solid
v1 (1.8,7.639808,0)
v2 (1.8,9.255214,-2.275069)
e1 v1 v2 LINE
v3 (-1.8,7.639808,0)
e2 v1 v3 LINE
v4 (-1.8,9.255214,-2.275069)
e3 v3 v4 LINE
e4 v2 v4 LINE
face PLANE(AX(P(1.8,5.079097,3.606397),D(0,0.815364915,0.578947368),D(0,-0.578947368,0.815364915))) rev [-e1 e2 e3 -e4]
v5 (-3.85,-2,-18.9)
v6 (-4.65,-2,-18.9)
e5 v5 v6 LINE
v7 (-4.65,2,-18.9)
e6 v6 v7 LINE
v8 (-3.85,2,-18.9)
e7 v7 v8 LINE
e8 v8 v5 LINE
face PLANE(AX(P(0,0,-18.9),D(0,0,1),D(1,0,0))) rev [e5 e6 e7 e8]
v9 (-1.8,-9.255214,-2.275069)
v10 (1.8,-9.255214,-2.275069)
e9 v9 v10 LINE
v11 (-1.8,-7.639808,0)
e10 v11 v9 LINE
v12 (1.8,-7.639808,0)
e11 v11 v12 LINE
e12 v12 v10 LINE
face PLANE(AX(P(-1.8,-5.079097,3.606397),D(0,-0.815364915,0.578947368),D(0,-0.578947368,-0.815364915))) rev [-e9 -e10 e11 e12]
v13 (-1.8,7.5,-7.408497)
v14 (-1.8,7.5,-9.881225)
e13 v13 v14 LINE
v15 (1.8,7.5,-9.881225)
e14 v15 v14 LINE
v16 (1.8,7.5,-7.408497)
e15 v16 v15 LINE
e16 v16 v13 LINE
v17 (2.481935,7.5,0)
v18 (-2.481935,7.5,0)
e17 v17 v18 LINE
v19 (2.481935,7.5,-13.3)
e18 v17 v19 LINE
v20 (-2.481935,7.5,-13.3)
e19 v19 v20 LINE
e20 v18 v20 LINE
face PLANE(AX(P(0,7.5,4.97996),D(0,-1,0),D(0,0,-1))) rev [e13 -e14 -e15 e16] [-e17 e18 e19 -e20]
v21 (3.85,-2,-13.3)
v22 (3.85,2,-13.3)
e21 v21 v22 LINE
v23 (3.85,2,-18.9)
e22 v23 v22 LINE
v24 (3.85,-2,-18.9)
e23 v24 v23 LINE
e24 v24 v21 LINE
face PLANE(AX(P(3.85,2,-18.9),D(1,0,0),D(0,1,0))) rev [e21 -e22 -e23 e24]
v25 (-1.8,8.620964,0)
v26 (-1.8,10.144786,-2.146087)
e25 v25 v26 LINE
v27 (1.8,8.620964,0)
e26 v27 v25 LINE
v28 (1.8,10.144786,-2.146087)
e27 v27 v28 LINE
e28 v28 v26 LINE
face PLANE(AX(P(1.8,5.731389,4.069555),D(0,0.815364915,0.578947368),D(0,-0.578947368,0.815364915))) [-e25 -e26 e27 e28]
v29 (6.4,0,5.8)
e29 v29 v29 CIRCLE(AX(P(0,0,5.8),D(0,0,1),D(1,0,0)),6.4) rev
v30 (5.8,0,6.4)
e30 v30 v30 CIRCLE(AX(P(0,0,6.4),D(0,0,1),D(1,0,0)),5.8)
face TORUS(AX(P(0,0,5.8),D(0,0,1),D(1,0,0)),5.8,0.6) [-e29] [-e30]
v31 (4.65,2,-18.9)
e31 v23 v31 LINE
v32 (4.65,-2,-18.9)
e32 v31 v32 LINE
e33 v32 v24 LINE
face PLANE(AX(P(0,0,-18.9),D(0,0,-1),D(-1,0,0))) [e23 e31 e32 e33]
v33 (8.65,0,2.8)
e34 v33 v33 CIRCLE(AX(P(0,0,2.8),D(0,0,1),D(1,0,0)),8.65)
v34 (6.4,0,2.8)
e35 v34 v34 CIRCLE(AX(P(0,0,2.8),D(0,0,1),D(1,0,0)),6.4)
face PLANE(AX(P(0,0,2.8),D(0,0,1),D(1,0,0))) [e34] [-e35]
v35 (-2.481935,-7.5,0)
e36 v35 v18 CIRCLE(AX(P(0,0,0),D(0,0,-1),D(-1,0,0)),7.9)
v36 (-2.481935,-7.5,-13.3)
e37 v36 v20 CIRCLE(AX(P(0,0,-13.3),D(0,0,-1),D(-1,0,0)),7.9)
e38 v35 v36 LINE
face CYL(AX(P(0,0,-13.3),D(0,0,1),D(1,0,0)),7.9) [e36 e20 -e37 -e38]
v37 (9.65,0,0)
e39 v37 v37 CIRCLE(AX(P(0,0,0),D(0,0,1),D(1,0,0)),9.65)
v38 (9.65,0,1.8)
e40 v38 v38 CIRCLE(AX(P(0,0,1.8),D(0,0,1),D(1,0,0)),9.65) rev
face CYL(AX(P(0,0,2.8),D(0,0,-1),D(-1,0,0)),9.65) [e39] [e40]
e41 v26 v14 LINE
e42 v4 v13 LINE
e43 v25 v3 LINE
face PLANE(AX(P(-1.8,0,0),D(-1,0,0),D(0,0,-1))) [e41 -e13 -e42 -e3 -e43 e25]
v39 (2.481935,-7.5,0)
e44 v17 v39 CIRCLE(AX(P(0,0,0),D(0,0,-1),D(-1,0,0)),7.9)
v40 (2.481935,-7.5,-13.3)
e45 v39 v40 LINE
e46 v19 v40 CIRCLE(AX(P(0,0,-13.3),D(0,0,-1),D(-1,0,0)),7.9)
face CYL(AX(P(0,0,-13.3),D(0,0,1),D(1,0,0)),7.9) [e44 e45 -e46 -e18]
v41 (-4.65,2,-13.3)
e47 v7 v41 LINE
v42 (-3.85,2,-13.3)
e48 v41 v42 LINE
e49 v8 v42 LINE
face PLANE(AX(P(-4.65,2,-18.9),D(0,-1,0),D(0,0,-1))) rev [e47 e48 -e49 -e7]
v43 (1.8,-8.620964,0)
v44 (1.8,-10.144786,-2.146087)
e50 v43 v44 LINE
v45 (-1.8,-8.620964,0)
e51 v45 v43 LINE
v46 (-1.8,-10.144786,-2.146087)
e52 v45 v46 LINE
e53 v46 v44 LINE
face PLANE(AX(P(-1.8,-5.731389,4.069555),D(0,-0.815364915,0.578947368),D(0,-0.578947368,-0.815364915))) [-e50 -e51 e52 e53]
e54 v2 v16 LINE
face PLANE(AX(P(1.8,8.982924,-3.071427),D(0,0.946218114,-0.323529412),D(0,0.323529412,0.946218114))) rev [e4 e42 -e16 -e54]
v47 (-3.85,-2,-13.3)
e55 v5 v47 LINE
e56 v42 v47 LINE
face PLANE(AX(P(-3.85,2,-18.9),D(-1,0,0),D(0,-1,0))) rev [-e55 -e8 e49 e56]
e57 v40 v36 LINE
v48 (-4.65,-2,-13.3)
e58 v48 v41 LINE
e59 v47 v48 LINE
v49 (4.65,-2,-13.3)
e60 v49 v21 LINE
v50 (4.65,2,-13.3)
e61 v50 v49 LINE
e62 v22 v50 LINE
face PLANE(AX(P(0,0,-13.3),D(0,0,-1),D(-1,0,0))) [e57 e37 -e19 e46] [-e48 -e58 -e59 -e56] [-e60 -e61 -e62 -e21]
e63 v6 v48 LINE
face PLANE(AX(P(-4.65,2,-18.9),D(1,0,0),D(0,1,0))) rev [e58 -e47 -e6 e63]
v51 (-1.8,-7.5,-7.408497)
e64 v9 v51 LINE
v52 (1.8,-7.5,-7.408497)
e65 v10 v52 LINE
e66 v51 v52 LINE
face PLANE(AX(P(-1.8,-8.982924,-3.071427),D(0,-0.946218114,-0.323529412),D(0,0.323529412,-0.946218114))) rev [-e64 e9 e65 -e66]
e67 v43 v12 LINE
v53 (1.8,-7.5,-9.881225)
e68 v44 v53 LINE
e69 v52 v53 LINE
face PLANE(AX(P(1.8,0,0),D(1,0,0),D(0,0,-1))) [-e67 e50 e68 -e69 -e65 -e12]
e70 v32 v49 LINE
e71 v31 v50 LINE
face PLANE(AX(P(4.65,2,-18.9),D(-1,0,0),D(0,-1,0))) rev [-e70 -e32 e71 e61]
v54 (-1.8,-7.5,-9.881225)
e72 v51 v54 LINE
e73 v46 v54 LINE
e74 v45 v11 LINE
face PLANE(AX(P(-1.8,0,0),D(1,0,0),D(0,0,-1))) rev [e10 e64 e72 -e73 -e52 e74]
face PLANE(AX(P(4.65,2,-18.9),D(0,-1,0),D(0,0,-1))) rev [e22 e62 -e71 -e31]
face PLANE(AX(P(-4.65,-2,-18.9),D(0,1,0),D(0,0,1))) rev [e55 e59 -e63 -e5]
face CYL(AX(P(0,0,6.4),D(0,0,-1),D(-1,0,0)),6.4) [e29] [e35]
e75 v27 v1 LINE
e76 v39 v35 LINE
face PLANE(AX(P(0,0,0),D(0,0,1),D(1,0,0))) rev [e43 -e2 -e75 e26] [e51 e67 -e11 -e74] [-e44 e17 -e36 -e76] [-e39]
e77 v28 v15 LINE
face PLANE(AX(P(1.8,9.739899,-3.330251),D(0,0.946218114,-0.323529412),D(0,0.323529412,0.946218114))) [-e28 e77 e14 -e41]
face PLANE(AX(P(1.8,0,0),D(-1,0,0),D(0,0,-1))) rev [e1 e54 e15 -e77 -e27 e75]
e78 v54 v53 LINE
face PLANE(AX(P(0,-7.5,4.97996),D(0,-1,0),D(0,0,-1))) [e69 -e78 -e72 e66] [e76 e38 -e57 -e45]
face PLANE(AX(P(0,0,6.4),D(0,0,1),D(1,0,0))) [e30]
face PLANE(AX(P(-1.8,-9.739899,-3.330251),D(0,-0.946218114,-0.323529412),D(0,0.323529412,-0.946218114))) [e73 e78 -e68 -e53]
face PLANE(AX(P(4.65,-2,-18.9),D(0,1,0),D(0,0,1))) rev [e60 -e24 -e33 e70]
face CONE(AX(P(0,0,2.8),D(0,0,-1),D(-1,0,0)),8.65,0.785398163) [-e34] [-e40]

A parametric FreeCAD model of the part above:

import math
import FreeCAD as App
import Part
import Sketcher


def edges_at(feature, points):
    """Names of the edges that pass closest to the given points."""
    edges = feature.Shape.Edges
    near = lambda p: min(range(len(edges)), key=lambda i: edges[i].distToShape(Part.Vertex(*p))[0])
    return sorted({f"Edge{near(p) + 1}" for p in points})

doc = App.newDocument("Part")
body = doc.addObject("PartDesign::Body", "Body")

# Sketch on XY plane
sketch1 = body.newObject("Sketcher::SketchObject", "Sketch")
sketch1.AttachmentSupport = (doc.getObject("XY_Plane"), [""])
sketch1.MapMode = "FlatFace"
sketch1.addGeometry(Part.Circle(App.Vector(0, 0, 0), App.Vector(0, 0, 1), 10), False)
sketch1.addConstraint(Sketcher.Constraint("Coincident", 0, 3, -1, 1))
sketch1.addConstraint(Sketcher.Constraint("Diameter", 0, 19.3))
pad1 = body.newObject("PartDesign::Pad", "Pad")
pad1.Profile = sketch1
pad1.Length = 2.8
doc.recompute()

chamfer = body.newObject("PartDesign::Chamfer", "Chamfer")
chamfer.Base = (pad1, edges_at(pad1, [(-9.65, 0, 2.8)]))
chamfer.Size = 1

# Sketch on XY plane
sketch2 = body.newObject("Sketcher::SketchObject", "Sketch001")
sketch2.AttachmentSupport = (doc.getObject("XY_Plane"), [""])
sketch2.MapMode = "FlatFace"
sketch2.AttachmentOffset = App.Placement(App.Vector(0, 0, 2.8), App.Rotation())
sketch2.addGeometry(Part.Circle(App.Vector(0, 0, 0), App.Vector(0, 0, 1), 6), False)
sketch2.addConstraint(Sketcher.Constraint("Coincident", 0, 3, -1, 1))
sketch2.addConstraint(Sketcher.Constraint("Diameter", 0, 12.8))
pad2 = body.newObject("PartDesign::Pad", "Pad001")
pad2.Profile = sketch2
pad2.Length = 3.6
doc.recompute()

fillet = body.newObject("PartDesign::Fillet", "Fillet")
fillet.Base = (pad2, edges_at(pad2, [(-6.4, 0, 6.4)]))
fillet.Radius = 0.6

# Sketch on XY plane
sketch3 = body.newObject("Sketcher::SketchObject", "Sketch002")
sketch3.AttachmentSupport = (doc.getObject("XY_Plane"), [""])
sketch3.MapMode = "FlatFace"
sketch3.addGeometry(Part.Circle(App.Vector(0, 0, 0), App.Vector(0, 0, 1), 8), False)
sketch3.addConstraint(Sketcher.Constraint("Coincident", 0, 3, -1, 1))
sketch3.addConstraint(Sketcher.Constraint("Diameter", 0, 15.8))
pad3 = body.newObject("PartDesign::Pad", "Pad002")
pad3.Profile = sketch3
pad3.Length = 13.3
pad3.Reversed = True

# Sketch on XY plane
sketch4 = body.newObject("Sketcher::SketchObject", "Sketch003")
sketch4.AttachmentSupport = (doc.getObject("XY_Plane"), [""])
sketch4.MapMode = "FlatFace"
sketch4.addGeometry(Part.ArcOfCircle(Part.Circle(App.Vector(0, 0, 0), App.Vector(0, 0, 1), 7.9), math.radians(72), math.radians(108)), False)
sketch4.addGeometry(Part.LineSegment(App.Vector(2.5, 7.5, 0), App.Vector(-2.5, 7.5, 0)), False)
sketch4.addGeometry(Part.LineSegment(App.Vector(-2.5, -7.5, 0), App.Vector(2.5, -7.5, 0)), False)
sketch4.addGeometry(Part.ArcOfCircle(Part.Circle(App.Vector(0, 0, 0), App.Vector(0, 0, 1), 7.9), math.radians(-108), math.radians(-72)), False)
sketch4.addConstraint(Sketcher.Constraint("Coincident", 0, 1, 1, 1))
sketch4.addConstraint(Sketcher.Constraint("Coincident", 1, 2, 0, 2))
sketch4.addConstraint(Sketcher.Constraint("Coincident", 2, 1, 3, 1))
sketch4.addConstraint(Sketcher.Constraint("Coincident", 3, 2, 2, 2))
sketch4.addConstraint(Sketcher.Constraint("Horizontal", 1))
sketch4.addConstraint(Sketcher.Constraint("Horizontal", 2))
sketch4.addConstraint(Sketcher.Constraint("Coincident", 0, 3, -1, 1))
sketch4.addConstraint(Sketcher.Constraint("Coincident", 3, 3, -1, 1))
sketch4.addConstraint(Sketcher.Constraint("Equal", 0, 3))
sketch4.addConstraint(Sketcher.Constraint("Vertical", 1, 2, 2, 1))
sketch4.addConstraint(Sketcher.Constraint("Radius", 0, 7.9))
sketch4.addConstraint(Sketcher.Constraint("DistanceY", 2, 1, 1, 2, 15.0))
pocket1 = body.newObject("PartDesign::Pocket", "Pocket")
pocket1.Profile = sketch4
pocket1.Length = 13.3

# Sketch on XY plane
sketch5 = body.newObject("Sketcher::SketchObject", "Sketch004")
sketch5.AttachmentSupport = (doc.getObject("XY_Plane"), [""])
sketch5.MapMode = "FlatFace"
sketch5.AttachmentOffset = App.Placement(App.Vector(0, 0, -13.3), App.Rotation())
sketch5.addGeometry(Part.LineSegment(App.Vector(-3.9, 2, 0), App.Vector(-3.9, -2, 0)), False)
sketch5.addGeometry(Part.LineSegment(App.Vector(-3.9, -2, 0), App.Vector(-4.7, -2, 0)), False)
sketch5.addGeometry(Part.LineSegment(App.Vector(-4.7, -2, 0), App.Vector(-4.7, 2, 0)), False)
sketch5.addGeometry(Part.LineSegment(App.Vector(-4.7, 2, 0), App.Vector(-3.9, 2, 0)), False)
sketch5.addGeometry(Part.LineSegment(App.Vector(4.7, 2, 0), App.Vector(4.7, -2, 0)), False)
sketch5.addGeometry(Part.LineSegment(App.Vector(4.7, -2, 0), App.Vector(3.9, -2, 0)), False)
sketch5.addGeometry(Part.LineSegment(App.Vector(3.9, -2, 0), App.Vector(3.9, 2, 0)), False)
sketch5.addGeometry(Part.LineSegment(App.Vector(3.9, 2, 0), App.Vector(4.7, 2, 0)), False)
sketch5.addConstraint(Sketcher.Constraint("Coincident", 0, 2, 1, 1))
sketch5.addConstraint(Sketcher.Constraint("Coincident", 1, 2, 2, 1))
sketch5.addConstraint(Sketcher.Constraint("Coincident", 2, 2, 3, 1))
sketch5.addConstraint(Sketcher.Constraint("Coincident", 3, 2, 0, 1))
sketch5.addConstraint(Sketcher.Constraint("Coincident", 4, 2, 5, 1))
sketch5.addConstraint(Sketcher.Constraint("Coincident", 5, 2, 6, 1))
sketch5.addConstraint(Sketcher.Constraint("Coincident", 6, 2, 7, 1))
sketch5.addConstraint(Sketcher.Constraint("Coincident", 7, 2, 4, 1))
sketch5.addConstraint(Sketcher.Constraint("Vertical", 0))
sketch5.addConstraint(Sketcher.Constraint("Horizontal", 1))
sketch5.addConstraint(Sketcher.Constraint("Vertical", 2))
sketch5.addConstraint(Sketcher.Constraint("Horizontal", 3))
sketch5.addConstraint(Sketcher.Constraint("Vertical", 4))
sketch5.addConstraint(Sketcher.Constraint("Horizontal", 5))
sketch5.addConstraint(Sketcher.Constraint("Vertical", 6))
sketch5.addConstraint(Sketcher.Constraint("Horizontal", 7))
sketch5.addConstraint(Sketcher.Constraint("Symmetric", 2, 2, 4, 2, -1, 1))
sketch5.addConstraint(Sketcher.Constraint("Symmetric", 0, 2, 6, 2, -1, 1))
sketch5.addConstraint(Sketcher.Constraint("Horizontal", 1, 2, 4, 2))
sketch5.addConstraint(Sketcher.Constraint("DistanceY", 0, 2, 0, 1, 4.0))
sketch5.addConstraint(Sketcher.Constraint("DistanceX", 1, 2, 1, 1, 0.8))
sketch5.addConstraint(Sketcher.Constraint("DistanceX", 0, 2, 4, 2, 8.5))
pad4 = body.newObject("PartDesign::Pad", "Pad003")
pad4.Profile = sketch5
pad4.Length = 5.6
pad4.Reversed = True

# Sketch on YZ plane
sketch6 = body.newObject("Sketcher::SketchObject", "Sketch005")
sketch6.AttachmentSupport = (doc.getObject("YZ_Plane"), [""])
sketch6.MapMode = "FlatFace"
sketch6.addGeometry(Part.LineSegment(App.Vector(-7.6, 0, 0), App.Vector(-8.6, 0, 0)), False)
sketch6.addGeometry(Part.LineSegment(App.Vector(-8.6, 0, 0), App.Vector(-10.1, -2.1, 0)), False)
sketch6.addGeometry(Part.LineSegment(App.Vector(-10.1, -2.1, 0), App.Vector(-7.5, -9.9, 0)), False)
sketch6.addGeometry(Part.LineSegment(App.Vector(-7.5, -9.9, 0), App.Vector(-7.5, -7.4, 0)), False)
sketch6.addGeometry(Part.LineSegment(App.Vector(-7.5, -7.4, 0), App.Vector(-9.3, -2.3, 0)), False)
sketch6.addGeometry(Part.LineSegment(App.Vector(-9.3, -2.3, 0), App.Vector(-7.6, 0, 0)), False)
sketch6.addConstraint(Sketcher.Constraint("Coincident", 0, 2, 1, 1))
sketch6.addConstraint(Sketcher.Constraint("Coincident", 1, 2, 2, 1))
sketch6.addConstraint(Sketcher.Constraint("Coincident", 2, 2, 3, 1))
sketch6.addConstraint(Sketcher.Constraint("Coincident", 3, 2, 4, 1))
sketch6.addConstraint(Sketcher.Constraint("Coincident", 4, 2, 5, 1))
sketch6.addConstraint(Sketcher.Constraint("Coincident", 5, 2, 0, 1))
sketch6.addConstraint(Sketcher.Constraint("Horizontal", 0))
sketch6.addConstraint(Sketcher.Constraint("Vertical", 3))
sketch6.addConstraint(Sketcher.Constraint("PointOnObject", 0, 2, -1))
sketch6.addConstraint(Sketcher.Constraint("Parallel", 2, 4))
sketch6.addConstraint(Sketcher.Constraint("Parallel", 1, 5))
sketch6.addConstraint(Sketcher.Constraint("DistanceX", 2, 2, -1, 1, 7.5))
sketch6.addConstraint(Sketcher.Constraint("DistanceX", 0, 2, 0, 1, 0.981156))
sketch6.addConstraint(Sketcher.Constraint("DistanceY", 3, 1, 3, 2, 2.472727))
sketch6.addConstraint(Sketcher.Constraint("DistanceY", 4, 2, -1, 1, 2.275069))
sketch6.addConstraint(Sketcher.Constraint("DistanceX", 5, 2, -1, 1, 7.639808))
sketch6.addConstraint(Sketcher.Constraint("DistanceY", 3, 2, 1, 2, 5.262411))
sketch6.addConstraint(Sketcher.Constraint("DistanceX", 4, 2, 0, 2, 0.63425))
pad5 = body.newObject("PartDesign::Pad", "Pad004")
pad5.Profile = sketch6
pad5.Length = 3.6
pad5.Midplane = True
doc.recompute()

polarpattern = body.newObject("PartDesign::PolarPattern", "PolarPattern")
polarpattern.Originals = [pad5]
polarpattern.Axis = (doc.getObject("Z_Axis"), [""])
polarpattern.Angle = 360
polarpattern.Occurrences = 2
body.Tip = polarpattern

doc.recompute()
